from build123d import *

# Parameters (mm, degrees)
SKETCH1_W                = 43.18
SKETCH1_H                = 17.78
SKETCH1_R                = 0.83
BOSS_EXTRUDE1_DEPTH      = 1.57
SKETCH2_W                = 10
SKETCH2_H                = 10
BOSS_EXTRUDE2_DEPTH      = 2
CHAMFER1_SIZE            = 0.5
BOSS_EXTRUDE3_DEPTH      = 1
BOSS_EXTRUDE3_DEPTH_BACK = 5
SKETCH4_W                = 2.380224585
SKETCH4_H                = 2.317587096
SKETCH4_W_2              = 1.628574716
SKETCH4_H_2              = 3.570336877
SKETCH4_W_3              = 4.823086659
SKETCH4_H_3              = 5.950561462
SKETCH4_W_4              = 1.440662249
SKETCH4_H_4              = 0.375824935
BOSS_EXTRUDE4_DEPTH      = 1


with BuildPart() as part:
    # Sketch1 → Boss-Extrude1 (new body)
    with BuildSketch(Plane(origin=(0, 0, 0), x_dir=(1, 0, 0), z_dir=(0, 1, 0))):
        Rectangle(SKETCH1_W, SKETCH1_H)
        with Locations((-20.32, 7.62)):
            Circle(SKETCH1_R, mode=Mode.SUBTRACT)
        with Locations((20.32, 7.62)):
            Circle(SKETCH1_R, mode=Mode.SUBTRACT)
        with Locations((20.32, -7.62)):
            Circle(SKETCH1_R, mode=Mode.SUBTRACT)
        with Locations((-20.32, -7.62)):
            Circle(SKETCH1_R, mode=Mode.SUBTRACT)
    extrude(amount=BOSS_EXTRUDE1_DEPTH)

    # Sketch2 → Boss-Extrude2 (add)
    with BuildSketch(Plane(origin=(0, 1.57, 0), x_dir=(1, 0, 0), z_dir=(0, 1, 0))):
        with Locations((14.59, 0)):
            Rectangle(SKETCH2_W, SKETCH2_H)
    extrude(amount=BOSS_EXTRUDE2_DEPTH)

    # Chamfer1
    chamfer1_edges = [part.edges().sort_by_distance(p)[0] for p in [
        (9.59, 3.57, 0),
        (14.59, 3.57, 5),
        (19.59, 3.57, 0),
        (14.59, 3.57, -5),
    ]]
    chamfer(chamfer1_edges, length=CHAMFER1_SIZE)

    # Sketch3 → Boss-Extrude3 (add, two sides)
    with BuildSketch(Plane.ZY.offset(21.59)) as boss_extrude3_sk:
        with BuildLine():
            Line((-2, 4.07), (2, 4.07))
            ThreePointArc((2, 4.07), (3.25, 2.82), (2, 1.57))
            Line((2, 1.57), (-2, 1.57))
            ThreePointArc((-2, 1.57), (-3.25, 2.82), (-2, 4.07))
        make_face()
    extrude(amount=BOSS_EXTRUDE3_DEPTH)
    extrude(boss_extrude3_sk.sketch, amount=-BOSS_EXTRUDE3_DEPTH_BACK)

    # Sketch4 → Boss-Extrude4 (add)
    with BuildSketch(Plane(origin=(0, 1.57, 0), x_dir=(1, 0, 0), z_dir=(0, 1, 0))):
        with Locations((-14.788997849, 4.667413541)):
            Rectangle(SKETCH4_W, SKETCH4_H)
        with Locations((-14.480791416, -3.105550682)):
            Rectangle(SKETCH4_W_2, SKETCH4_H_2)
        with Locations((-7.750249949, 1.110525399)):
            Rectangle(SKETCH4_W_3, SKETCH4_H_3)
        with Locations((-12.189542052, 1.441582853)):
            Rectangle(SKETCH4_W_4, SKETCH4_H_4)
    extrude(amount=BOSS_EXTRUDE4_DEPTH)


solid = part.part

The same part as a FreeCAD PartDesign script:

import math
import FreeCAD as App
import Part
import Sketcher

V = App.Vector


def edges_at(feature, points):
    """Names of the edges that pass closest to the given points."""
    edges = feature.Shape.Edges
    near = lambda p: min(range(len(edges)), key=lambda i: edges[i].distToShape(Part.Vertex(*p))[0])
    return sorted({f"Edge{near(p) + 1}" for p in points})

doc = App.newDocument("Part")
body = doc.addObject("PartDesign::Body", "Body")

# Sketch on XZ plane
sketch1 = doc.addObject("Sketcher::SketchObject", "Sketch")
body.addObject(sketch1)
sketch1.AttachmentSupport = (doc.XZ_Plane, [""])
sketch1.MapMode = "FlatFace"
sketch1.addGeometry(Part.LineSegment(V(-21.59, -8.89, 0), V(-21.59, 8.89, 0)), False)
sketch1.addGeometry(Part.LineSegment(V(-21.59, 8.89, 0), V(21.59, 8.89, 0)), False)
sketch1.addGeometry(Part.LineSegment(V(21.59, 8.89, 0), V(21.59, -8.89, 0)), False)
sketch1.addGeometry(Part.LineSegment(V(21.59, -8.89, 0), V(-21.59, -8.89, 0)), False)
sketch1.addGeometry(Part.Circle(V(-20.32, 7.62, 0), V(0, 0, 1), 0.83), False)
sketch1.addGeometry(Part.Circle(V(20.32, 7.62, 0), V(0, 0, 1), 0.83), False)
sketch1.addGeometry(Part.Circle(V(-20.32, -7.62, 0), V(0, 0, 1), 0.83), False)
sketch1.addGeometry(Part.Circle(V(20.32, -7.62, 0), V(0, 0, 1), 0.83), False)
sketch1.addConstraint(Sketcher.Constraint("Coincident", 0, 2, 1, 1))
sketch1.addConstraint(Sketcher.Constraint("Coincident", 1, 2, 2, 1))
sketch1.addConstraint(Sketcher.Constraint("Coincident", 2, 2, 3, 1))
sketch1.addConstraint(Sketcher.Constraint("Coincident", 3, 2, 0, 1))
sketch1.addConstraint(Sketcher.Constraint("Vertical", 0))
sketch1.addConstraint(Sketcher.Constraint("Horizontal", 1))
sketch1.addConstraint(Sketcher.Constraint("Vertical", 2))
sketch1.addConstraint(Sketcher.Constraint("Horizontal", 3))
sketch1.addConstraint(Sketcher.Constraint("Equal", 4, 5))
sketch1.addConstraint(Sketcher.Constraint("Equal", 5, 6))
sketch1.addConstraint(Sketcher.Constraint("Equal", 6, 7))
sketch1.addConstraint(Sketcher.Constraint("Symmetric", 5, 3, 6, 3, -1, 1))
sketch1.addConstraint(Sketcher.Constraint("Symmetric", 4, 3, 7, 3, -1, 1))
sketch1.addConstraint(Sketcher.Constraint("Symmetric", 0, 2, 2, 2, -1, 1))
sketch1.addConstraint(Sketcher.Constraint("Symmetric", 4, 3, 5, 3, -2))
sketch1.addConstraint(Sketcher.Constraint("Diameter", 4, 1.66))
sketch1.addConstraint(Sketcher.Constraint("DistanceX", 1, 1, 1, 2, 43.18))
sketch1.addConstraint(Sketcher.Constraint("DistanceY", 0, 1, 0, 2, 17.78))
sketch1.addConstraint(Sketcher.Constraint("DistanceX", 4, 3, -1, 1, 20.32))
sketch1.addConstraint(Sketcher.Constraint("DistanceY", -1, 1, 4, 3, 7.62))
pad1 = doc.addObject("PartDesign::Pad", "Pad")
body.addObject(pad1)
pad1.Profile = sketch1
pad1.Length = 1.57
pad1.Reversed = True

# Sketch on XZ plane
sketch2 = doc.addObject("Sketcher::SketchObject", "Sketch001")
body.addObject(sketch2)
sketch2.AttachmentSupport = (doc.XZ_Plane, [""])
sketch2.MapMode = "FlatFace"
sketch2.AttachmentOffset = App.Placement(V(0, 0, -1.57), App.Rotation())
sketch2.addGeometry(Part.LineSegment(V(9.59, -5, 0), V(9.59, 5, 0)), False)
sketch2.addGeometry(Part.LineSegment(V(9.59, 5, 0), V(19.59, 5, 0)), False)
sketch2.addGeometry(Part.LineSegment(V(19.59, 5, 0), V(19.59, -5, 0)), False)
sketch2.addGeometry(Part.LineSegment(V(19.59, -5, 0), V(9.59, -5, 0)), False)
sketch2.addConstraint(Sketcher.Constraint("Coincident", 0, 2, 1, 1))
sketch2.addConstraint(Sketcher.Constraint("Coincident", 1, 2, 2, 1))
sketch2.addConstraint(Sketcher.Constraint("Coincident", 2, 2, 3, 1))
sketch2.addConstraint(Sketcher.Constraint("Coincident", 3, 2, 0, 1))
sketch2.addConstraint(Sketcher.Constraint("Vertical", 0))
sketch2.addConstraint(Sketcher.Constraint("Horizontal", 1))
sketch2.addConstraint(Sketcher.Constraint("Vertical", 2))
sketch2.addConstraint(Sketcher.Constraint("Horizontal", 3))
sketch2.addConstraint(Sketcher.Constraint("Equal", 3, 0))
sketch2.addConstraint(Sketcher.Constraint("DistanceX", 1, 1, 1, 2, 10.0))
sketch2.addConstraint(Sketcher.Constraint("DistanceY", -1, 1, 0, 2, 5.0))
sketch2.addConstraint(Sketcher.Constraint("DistanceX", -1, 1, 0, 2, 9.59))
pad2 = doc.addObject("PartDesign::Pad", "Pad001")
body.addObject(pad2)
pad2.Profile = sketch2
pad2.Length = 2
pad2.Reversed = True
doc.recompute()

chamfer = doc.addObject("PartDesign::Chamfer", "Chamfer")
body.addObject(chamfer)
chamfer.Base = (pad2, edges_at(pad2, [
    (9.59, 3.57, 0),
    (14.59, 3.57, 5),
    (19.59, 3.57, 0),
    (14.59, 3.57, -5),
]))
chamfer.Size = 0.5

# Sketch on YZ plane
sketch3 = doc.addObject("Sketcher::SketchObject", "Sketch002")
body.addObject(sketch3)
sketch3.AttachmentSupport = (doc.YZ_Plane, [""])
sketch3.MapMode = "FlatFace"
sketch3.AttachmentOffset = App.Placement(V(0, 0, -21.59), App.Rotation())
sketch3.addGeometry(Part.LineSegment(V(4.07, 2, 0), V(4.07, -2, 0)), False)
sketch3.addGeometry(Part.ArcOfCircle(Part.Circle(V(2.82, -2, 0), V(0, 0, 1), 1.25), math.radians(180), math.radians(360)), False)
sketch3.addGeometry(Part.LineSegment(V(1.57, -2, 0), V(1.57, 2, 0)), False)
sketch3.addGeometry(Part.ArcOfCircle(Part.Circle(V(2.82, 2, 0), V(0, 0, 1), 1.25), math.radians(0), math.radians(180)), False)
sketch3.addConstraint(Sketcher.Constraint("Tangent", 0, 2, 1, 2))
sketch3.addConstraint(Sketcher.Constraint("Tangent", 1, 1, 2, 1))
sketch3.addConstraint(Sketcher.Constraint("Tangent", 2, 2, 3, 2))
sketch3.addConstraint(Sketcher.Constraint("Tangent", 3, 1, 0, 1))
sketch3.addConstraint(Sketcher.Constraint("Vertical", 0))
sketch3.addConstraint(Sketcher.Constraint("Vertical", 2))
sketch3.addConstraint(Sketcher.Constraint("DistanceY", 0, 2, 0, 1, 4.0))
sketch3.addConstraint(Sketcher.Constraint("Radius", 1, 1.25))
sketch3.addConstraint(Sketcher.Constraint("DistanceY", 1, 3, -1, 1, 2.0))
sketch3.addConstraint(Sketcher.Constraint("DistanceX", -1, 1, 1, 3, 2.82))
pad3 = doc.addObject("PartDesign::Pad", "Pad002")
body.addObject(pad3)
pad3.Profile = sketch3
pad3.Type = "TwoLengths"
pad3.Length = 1
pad3.Length2 = 5
pad3.Reversed = True

# Sketch on XZ plane
sketch4 = doc.addObject("Sketcher::SketchObject", "Sketch003")
body.addObject(sketch4)
sketch4.AttachmentSupport = (doc.XZ_Plane, [""])
sketch4.MapMode = "FlatFace"
sketch4.AttachmentOffset = App.Placement(V(0, 0, -1.57), App.Rotation())
sketch4.addGeometry(Part.LineSegment(V(-15.97911, -5.826207, 0), V(-15.97911, -3.50862, 0)), False)
sketch4.addGeometry(Part.LineSegment(V(-15.97911, -3.50862, 0), V(-13.598886, -3.50862, 0)), False)
sketch4.addGeometry(Part.LineSegment(V(-13.598886, -3.50862, 0), V(-13.598886, -5.826207, 0)), False)
sketch4.addGeometry(Part.LineSegment(V(-13.598886, -5.826207, 0), V(-15.97911, -5.826207, 0)), False)
sketch4.addGeometry(Part.LineSegment(V(-15.295079, 1.320382, 0), V(-15.295079, 4.890719, 0)), False)
sketch4.addGeometry(Part.LineSegment(V(-15.295079, 4.890719, 0), V(-13.666504, 4.890719, 0)), False)
sketch4.addGeometry(Part.LineSegment(V(-13.666504, 4.890719, 0), V(-13.666504, 1.320382, 0)), False)
sketch4.addGeometry(Part.LineSegment(V(-13.666504, 1.320382, 0), V(-15.295079, 1.320382, 0)), False)
sketch4.addGeometry(Part.LineSegment(V(-10.161793, -4.085806, 0), V(-10.161793, 1.864755, 0)), False)
sketch4.addGeometry(Part.LineSegment(V(-10.161793, 1.864755, 0), V(-5.338707, 1.864755, 0)), False)
sketch4.addGeometry(Part.LineSegment(V(-5.338707, 1.864755, 0), V(-5.338707, -4.085806, 0)), False)
sketch4.addGeometry(Part.LineSegment(V(-5.338707, -4.085806, 0), V(-10.161793, -4.085806, 0)), False)
sketch4.addGeometry(Part.LineSegment(V(-12.909873, -1.629495, 0), V(-12.909873, -1.25367, 0)), False)
sketch4.addGeometry(Part.LineSegment(V(-12.909873, -1.25367, 0), V(-11.469211, -1.25367, 0)), False)
sketch4.addGeometry(Part.LineSegment(V(-11.469211, -1.25367, 0), V(-11.469211, -1.629495, 0)), False)
sketch4.addGeometry(Part.LineSegment(V(-11.469211, -1.629495, 0), V(-12.909873, -1.629495, 0)), False)
sketch4.addConstraint(Sketcher.Constraint("Coincident", 0, 2, 1, 1))
sketch4.addConstraint(Sketcher.Constraint("Coincident", 1, 2, 2, 1))
sketch4.addConstraint(Sketcher.Constraint("Coincident", 2, 2, 3, 1))
sketch4.addConstraint(Sketcher.Constraint("Coincident", 3, 2, 0, 1))
sketch4.addConstraint(Sketcher.Constraint("Coincident", 4, 2, 5, 1))
sketch4.addConstraint(Sketcher.Constraint("Coincident", 5, 2, 6, 1))
sketch4.addConstraint(Sketcher.Constraint("Coincident", 6, 2, 7, 1))
sketch4.addConstraint(Sketcher.Constraint("Coincident", 7, 2, 4, 1))
sketch4.addConstraint(Sketcher.Constraint("Coincident", 8, 2, 9, 1))
sketch4.addConstraint(Sketcher.Constraint("Coincident", 9, 2, 10, 1))
sketch4.addConstraint(Sketcher.Constraint("Coincident", 10, 2, 11, 1))
sketch4.addConstraint(Sketcher.Constraint("Coincident", 11, 2, 8, 1))
sketch4.addConstraint(Sketcher.Constraint("Coincident", 12, 2, 13, 1))
sketch4.addConstraint(Sketcher.Constraint("Coincident", 13, 2, 14, 1))
sketch4.addConstraint(Sketcher.Constraint("Coincident", 14, 2, 15, 1))
sketch4.addConstraint(Sketcher.Constraint("Coincident", 15, 2, 12, 1))
sketch4.addConstraint(Sketcher.Constraint("Vertical", 0))
sketch4.addConstraint(Sketcher.Constraint("Horizontal", 1))
sketch4.addConstraint(Sketcher.Constraint("Vertical", 2))
sketch4.addConstraint(Sketcher.Constraint("Horizontal", 3))
sketch4.addConstraint(Sketcher.Constraint("Vertical", 4))
sketch4.addConstraint(Sketcher.Constraint("Horizontal", 5))
sketch4.addConstraint(Sketcher.Constraint("Vertical", 6))
sketch4.addConstraint(Sketcher.Constraint("Horizontal", 7))
sketch4.addConstraint(Sketcher.Constraint("Vertical", 8))
sketch4.addConstraint(Sketcher.Constraint("Horizontal", 9))
sketch4.addConstraint(Sketcher.Constraint("Vertical", 10))
sketch4.addConstraint(Sketcher.Constraint("Horizontal", 11))
sketch4.addConstraint(Sketcher.Constraint("Vertical", 12))
sketch4.addConstraint(Sketcher.Constraint("Horizontal", 13))
sketch4.addConstraint(Sketcher.Constraint("Vertical", 14))
sketch4.addConstraint(Sketcher.Constraint("Horizontal", 15))
sketch4.addConstraint(Sketcher.Constraint("DistanceY", 8, 1, 8, 2, 5.950561))
sketch4.addConstraint(Sketcher.Constraint("DistanceY", 2, 2, 10, 2, 1.740401))
sketch4.addConstraint(Sketcher.Constraint("DistanceX", 1, 1, 1, 2, 2.380225))
sketch4.addConstraint(Sketcher.Constraint("DistanceX", 5, 1, 5, 2, 1.628575))
sketch4.addConstraint(Sketcher.Constraint("DistanceX", 9, 1, 9, 2, 4.823087))
sketch4.addConstraint(Sketcher.Constraint("DistanceX", 13, 1, 13, 2, 1.440662))
sketch4.addConstraint(Sketcher.Constraint("DistanceY", 0, 1, 0, 2, 2.317587))
sketch4.addConstraint(Sketcher.Constraint("DistanceY", 4, 1, 4, 2, 3.570337))
sketch4.addConstraint(Sketcher.Constraint("DistanceY", 12, 1, 12, 2, 0.375825))
sketch4.addConstraint(Sketcher.Constraint("DistanceX", 0, 2, -1, 1, 15.97911))
sketch4.addConstraint(Sketcher.Constraint("DistanceY", 0, 2, -1, 1, 3.50862))
sketch4.addConstraint(Sketcher.Constraint("DistanceX", 4, 2, -1, 1, 15.295079))
sketch4.addConstraint(Sketcher.Constraint("DistanceY", -1, 1, 4, 2, 4.890719))
sketch4.addConstraint(Sketcher.Constraint("DistanceY", 12, 2, -1, 1, 1.25367))
sketch4.addConstraint(Sketcher.Constraint("DistanceX", 13, 2, -1, 1, 11.469211))
sketch4.addConstraint(Sketcher.Constraint("DistanceX", 6, 2, 8, 2, 3.504711))
pad4 = doc.addObject("PartDesign::Pad", "Pad003")
body.addObject(pad4)
pad4.Profile = sketch4
pad4.Length = 1
pad4.Reversed = True

doc.recompute()
